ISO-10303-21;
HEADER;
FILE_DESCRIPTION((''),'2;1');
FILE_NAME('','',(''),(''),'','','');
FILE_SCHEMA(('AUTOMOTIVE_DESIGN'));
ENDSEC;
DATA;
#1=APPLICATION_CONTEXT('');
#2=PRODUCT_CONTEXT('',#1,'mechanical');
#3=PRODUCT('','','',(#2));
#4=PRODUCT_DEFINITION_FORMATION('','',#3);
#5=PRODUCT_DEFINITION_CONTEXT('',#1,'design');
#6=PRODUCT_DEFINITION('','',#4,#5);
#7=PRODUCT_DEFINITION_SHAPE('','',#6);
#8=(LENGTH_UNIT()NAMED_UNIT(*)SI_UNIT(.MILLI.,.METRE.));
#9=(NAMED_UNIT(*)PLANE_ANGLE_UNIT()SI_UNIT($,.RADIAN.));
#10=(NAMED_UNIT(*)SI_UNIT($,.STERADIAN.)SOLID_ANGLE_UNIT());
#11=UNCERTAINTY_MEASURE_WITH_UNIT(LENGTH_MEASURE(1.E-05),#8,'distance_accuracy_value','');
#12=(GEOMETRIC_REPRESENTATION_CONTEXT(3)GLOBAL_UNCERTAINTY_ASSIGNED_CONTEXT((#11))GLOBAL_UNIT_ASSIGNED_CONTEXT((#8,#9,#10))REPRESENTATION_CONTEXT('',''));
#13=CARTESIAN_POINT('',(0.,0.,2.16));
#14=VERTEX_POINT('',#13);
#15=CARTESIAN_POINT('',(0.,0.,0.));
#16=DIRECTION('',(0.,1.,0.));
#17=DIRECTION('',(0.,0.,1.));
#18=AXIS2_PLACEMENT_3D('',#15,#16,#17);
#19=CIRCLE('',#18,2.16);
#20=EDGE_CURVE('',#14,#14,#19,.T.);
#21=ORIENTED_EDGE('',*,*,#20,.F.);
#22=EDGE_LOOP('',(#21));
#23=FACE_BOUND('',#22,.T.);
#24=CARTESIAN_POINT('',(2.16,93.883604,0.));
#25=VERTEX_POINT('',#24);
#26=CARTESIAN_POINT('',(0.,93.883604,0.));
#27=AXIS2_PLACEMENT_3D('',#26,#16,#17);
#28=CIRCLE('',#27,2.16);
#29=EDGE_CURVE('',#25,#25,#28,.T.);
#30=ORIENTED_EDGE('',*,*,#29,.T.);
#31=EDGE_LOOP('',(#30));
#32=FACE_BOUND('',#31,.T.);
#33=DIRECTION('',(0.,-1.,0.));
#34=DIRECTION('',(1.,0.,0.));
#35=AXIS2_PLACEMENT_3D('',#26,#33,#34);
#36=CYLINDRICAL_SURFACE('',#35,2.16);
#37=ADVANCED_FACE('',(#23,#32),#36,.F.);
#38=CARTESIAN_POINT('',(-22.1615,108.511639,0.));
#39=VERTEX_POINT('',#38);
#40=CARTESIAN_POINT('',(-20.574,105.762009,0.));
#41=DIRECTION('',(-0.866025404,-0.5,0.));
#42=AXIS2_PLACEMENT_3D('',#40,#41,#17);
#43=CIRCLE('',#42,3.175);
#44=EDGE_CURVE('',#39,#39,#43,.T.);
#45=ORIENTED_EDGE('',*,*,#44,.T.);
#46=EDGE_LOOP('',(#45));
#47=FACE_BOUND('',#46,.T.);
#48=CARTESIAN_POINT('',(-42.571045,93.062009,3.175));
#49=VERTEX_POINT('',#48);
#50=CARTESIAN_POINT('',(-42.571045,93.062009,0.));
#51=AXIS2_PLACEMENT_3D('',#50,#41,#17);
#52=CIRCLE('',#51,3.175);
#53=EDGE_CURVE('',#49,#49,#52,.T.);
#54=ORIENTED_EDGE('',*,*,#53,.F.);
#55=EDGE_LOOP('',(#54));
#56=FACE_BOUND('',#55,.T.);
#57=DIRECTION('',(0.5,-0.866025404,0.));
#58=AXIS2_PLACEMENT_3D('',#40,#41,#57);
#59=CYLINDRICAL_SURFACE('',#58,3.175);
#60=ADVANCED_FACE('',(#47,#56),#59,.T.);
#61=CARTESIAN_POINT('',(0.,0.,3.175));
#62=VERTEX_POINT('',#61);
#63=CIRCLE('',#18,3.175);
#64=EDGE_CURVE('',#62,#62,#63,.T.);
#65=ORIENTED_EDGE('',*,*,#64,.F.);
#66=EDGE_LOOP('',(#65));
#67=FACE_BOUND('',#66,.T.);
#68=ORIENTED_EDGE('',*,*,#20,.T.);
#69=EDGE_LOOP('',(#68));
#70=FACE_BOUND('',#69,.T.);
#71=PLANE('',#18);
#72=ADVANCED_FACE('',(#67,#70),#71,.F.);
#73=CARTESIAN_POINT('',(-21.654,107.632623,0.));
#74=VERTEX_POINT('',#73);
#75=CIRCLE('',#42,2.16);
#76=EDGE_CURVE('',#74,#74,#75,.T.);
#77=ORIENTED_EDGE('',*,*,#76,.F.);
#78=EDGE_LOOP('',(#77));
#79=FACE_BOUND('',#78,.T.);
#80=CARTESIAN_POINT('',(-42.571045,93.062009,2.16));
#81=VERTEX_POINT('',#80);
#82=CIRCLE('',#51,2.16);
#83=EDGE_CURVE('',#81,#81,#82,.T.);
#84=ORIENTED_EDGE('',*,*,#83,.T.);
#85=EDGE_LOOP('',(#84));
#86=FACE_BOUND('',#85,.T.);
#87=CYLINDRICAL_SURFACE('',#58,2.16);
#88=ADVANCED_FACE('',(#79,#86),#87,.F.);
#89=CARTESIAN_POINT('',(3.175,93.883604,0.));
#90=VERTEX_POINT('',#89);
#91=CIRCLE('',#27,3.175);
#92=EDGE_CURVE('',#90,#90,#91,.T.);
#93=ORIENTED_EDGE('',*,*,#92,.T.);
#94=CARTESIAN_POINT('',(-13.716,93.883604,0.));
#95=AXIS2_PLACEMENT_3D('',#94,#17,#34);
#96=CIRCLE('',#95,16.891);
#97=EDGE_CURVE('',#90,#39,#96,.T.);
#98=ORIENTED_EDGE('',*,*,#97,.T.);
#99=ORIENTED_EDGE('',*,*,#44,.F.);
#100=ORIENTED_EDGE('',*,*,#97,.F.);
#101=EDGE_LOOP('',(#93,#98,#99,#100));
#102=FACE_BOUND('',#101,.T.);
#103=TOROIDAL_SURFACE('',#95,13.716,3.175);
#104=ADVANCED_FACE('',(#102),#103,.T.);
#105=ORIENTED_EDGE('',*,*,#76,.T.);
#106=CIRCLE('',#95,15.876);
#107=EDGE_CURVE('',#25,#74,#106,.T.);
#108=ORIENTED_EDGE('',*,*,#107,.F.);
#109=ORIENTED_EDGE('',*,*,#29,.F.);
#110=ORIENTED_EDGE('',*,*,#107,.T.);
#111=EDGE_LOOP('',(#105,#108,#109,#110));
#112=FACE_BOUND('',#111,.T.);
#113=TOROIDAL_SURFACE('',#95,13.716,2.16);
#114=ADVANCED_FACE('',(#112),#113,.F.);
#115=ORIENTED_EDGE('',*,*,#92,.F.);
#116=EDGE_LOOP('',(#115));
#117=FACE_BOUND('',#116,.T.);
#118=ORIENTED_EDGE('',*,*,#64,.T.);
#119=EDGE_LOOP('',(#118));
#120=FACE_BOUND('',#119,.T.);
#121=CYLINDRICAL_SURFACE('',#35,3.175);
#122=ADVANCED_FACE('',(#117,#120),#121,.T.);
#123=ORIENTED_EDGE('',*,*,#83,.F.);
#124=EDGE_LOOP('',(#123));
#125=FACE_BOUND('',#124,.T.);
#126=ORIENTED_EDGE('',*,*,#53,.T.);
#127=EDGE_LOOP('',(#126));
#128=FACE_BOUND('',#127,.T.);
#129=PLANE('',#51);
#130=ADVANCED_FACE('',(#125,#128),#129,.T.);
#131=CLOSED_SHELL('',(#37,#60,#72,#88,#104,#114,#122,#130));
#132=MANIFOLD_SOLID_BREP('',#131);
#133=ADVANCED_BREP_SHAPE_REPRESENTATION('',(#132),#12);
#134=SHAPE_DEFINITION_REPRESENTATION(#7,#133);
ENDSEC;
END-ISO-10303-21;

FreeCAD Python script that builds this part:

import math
import FreeCAD as App
import Part
import Sketcher
from FreeCAD import Vector
Q = App.Units.Quantity

doc = App.newDocument("Part")
body = doc.addObject("PartDesign::Body", "Body")

sketch1 = body.newObject("Sketcher::SketchObject", "Sketch")
sketch1.AttachmentSupport = (doc.getObject("XZ_Plane"), [""])
sketch1.MapMode = "FlatFace"
sketch1.addGeometry(Part.Circle(Vector(0, 0, 0), Vector(0, 0, 1), 3.175), False)
sketch1.addGeometry(Part.Circle(Vector(0, 0, 0), Vector(0, 0, 1), 2.16), False)
sketch1.addConstraint(Sketcher.Constraint("Coincident", 0, 3, -1, 1))
sketch1.addConstraint(Sketcher.Constraint("Coincident", 1, 3, -1, 1))
sketch1.addConstraint(Sketcher.Constraint("Diameter", 0, Q("0.25 in")))
sketch1.addConstraint(Sketcher.Constraint("Diameter", 1, 4.32))

sketch2 = body.newObject("Sketcher::SketchObject", "Sketch001")
sketch2.AttachmentSupport = (doc.getObject("XY_Plane"), [""])
sketch2.MapMode = "FlatFace"
sketch2.addGeometry(Part.LineSegment(Vector(-42.571045, 93.062009, 0), Vector(-20.574, 105.762009, 0)), False)
sketch2.addGeometry(Part.ArcOfCircle(Part.Circle(Vector(-13.716, 93.883604, 0), Vector(0, 0, 1), 13.716), math.radians(0), math.radians(120)), False)
sketch2.addGeometry(Part.LineSegment(Vector(0, 93.883604, 0), Vector(0, 0, 0)), False)
sketch2.addConstraint(Sketcher.Constraint("Tangent", 0, 2, 1, 2))
sketch2.addConstraint(Sketcher.Constraint("Tangent", 1, 1, 2, 1))
sketch2.addConstraint(Sketcher.Constraint("Vertical", 2))
sketch2.addConstraint(Sketcher.Constraint("Coincident", 2, 2, -1, 1))
sketch2.addConstraint(Sketcher.Constraint("Radius", 1, Q("0.54 in")))
sketch2.addConstraint(Sketcher.Constraint("Distance", 0, Q("1 in")))
sketch2.addConstraint(Sketcher.Constraint("Angle", 0, Q("30 deg")))
sketch2.addConstraint(Sketcher.Constraint("DistanceY", 2, 2, 2, 1, 93.883604))
doc.recompute()

additivepipe = body.newObject("PartDesign::AdditivePipe", "AdditivePipe")
additivepipe.Profile = sketch1
additivepipe.Spine = (sketch2, ["Edge1", "Edge2", "Edge3"])

doc.recompute()
